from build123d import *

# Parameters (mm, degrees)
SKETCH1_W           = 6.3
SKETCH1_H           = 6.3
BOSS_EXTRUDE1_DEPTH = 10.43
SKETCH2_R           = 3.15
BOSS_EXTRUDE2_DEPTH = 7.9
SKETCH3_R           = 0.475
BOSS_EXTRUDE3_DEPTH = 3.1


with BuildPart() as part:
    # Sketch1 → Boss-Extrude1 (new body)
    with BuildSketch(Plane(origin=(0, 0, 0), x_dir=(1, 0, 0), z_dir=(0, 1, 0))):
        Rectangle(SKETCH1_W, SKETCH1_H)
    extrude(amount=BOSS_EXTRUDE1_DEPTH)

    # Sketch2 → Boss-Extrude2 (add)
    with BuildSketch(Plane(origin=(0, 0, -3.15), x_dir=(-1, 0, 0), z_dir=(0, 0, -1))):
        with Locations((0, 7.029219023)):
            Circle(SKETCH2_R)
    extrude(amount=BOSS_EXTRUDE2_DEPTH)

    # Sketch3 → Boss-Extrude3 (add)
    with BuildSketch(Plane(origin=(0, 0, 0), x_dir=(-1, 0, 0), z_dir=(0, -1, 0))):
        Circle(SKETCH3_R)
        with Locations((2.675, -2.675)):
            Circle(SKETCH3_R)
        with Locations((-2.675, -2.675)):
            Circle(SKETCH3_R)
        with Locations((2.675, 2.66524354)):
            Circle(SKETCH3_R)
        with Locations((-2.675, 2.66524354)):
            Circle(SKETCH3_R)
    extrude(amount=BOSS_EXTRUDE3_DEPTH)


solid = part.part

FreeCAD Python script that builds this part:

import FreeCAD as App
import Part
import Sketcher
from FreeCAD import Vector
Q = App.Units.Quantity


def add_polygon(sketch, points):
    """Adds a closed chain of lines whose ends are joined by coincident constraints."""
    first, n = sketch.GeometryCount, len(points)
    for a, b in zip(points, points[1:] + points[:1]):
        sketch.addGeometry(Part.LineSegment(App.Vector(*a, 0), App.Vector(*b, 0)), False)
    for i in range(n):
        sketch.addConstraint(Sketcher.Constraint("Coincident", first + i, 2, first + (i + 1) % n, 1))

doc = App.newDocument("Part")
params = doc.addObject("Spreadsheet::Sheet", "Params")
for row, (alias, value) in enumerate([
    ("sketch1_width", "6.3 mm"),
    ("pad1_length", "10.43 mm"),
    ("sketch2_diameter", "6.3 mm"),
    ("pad2_length", "7.9 mm"),
    ("sketch3_diameter", "0.95 mm"),
    ("pad3_length", "3.1 mm"),
], start=1):
    params.set(f"A{row}", alias)
    params.set(f"B{row}", "=" + value)
    params.setAlias(f"B{row}", alias)

body = doc.addObject("PartDesign::Body", "Body")

# Sketch on XZ plane
sketch1 = doc.addObject("Sketcher::SketchObject", "Sketch")
body.addObject(sketch1)
sketch1.AttachmentSupport = (doc.XZ_Plane, [""])
sketch1.MapMode = "FlatFace"
add_polygon(sketch1, [(-3, -3), (-3, 3), (3, 3), (3, -3)])  # lines 0-3
sketch1.addConstraint([
    Sketcher.Constraint("Vertical", 0),
    Sketcher.Constraint("Horizontal", 1),
    Sketcher.Constraint("Vertical", 2),
    Sketcher.Constraint("Horizontal", 3),
    Sketcher.Constraint("Symmetric", 0, 2, 2, 2, -1, 1),
    Sketcher.Constraint("Equal", 3, 0),
    Sketcher.Constraint("DistanceX", 1, 1, 1, 2, Q("6.3 mm")),
])
sketch1.setExpression("Constraints[10]", "Params.sketch1_width")
pad1 = doc.addObject("PartDesign::Pad", "Pad")
body.addObject(pad1)
pad1.Profile = sketch1
pad1.setExpression("Length", "Params.pad1_length")
pad1.Reversed = True

# Sketch on XY plane
sketch2 = doc.addObject("Sketcher::SketchObject", "Sketch001")
body.addObject(sketch2)
sketch2.AttachmentSupport = (doc.XY_Plane, [""])
sketch2.MapMode = "FlatFace"
sketch2.AttachmentOffset = App.Placement(Vector(0, 0, -3.15), App.Rotation())
sketch2.addGeometry(Part.Circle(Vector(0, 7, 0), Vector(0, 0, 1), 3.1), False)
sketch2.addConstraint([
    Sketcher.Constraint("PointOnObject", 0, 3, -2),
    Sketcher.Constraint("Diameter", 0, Q("6.3 mm")),
    Sketcher.Constraint("DistanceY", -1, 1, 0, 3, Q("7.029219 mm")),
])
sketch2.setExpression("Constraints[1]", "Params.sketch2_diameter")
pad2 = doc.addObject("PartDesign::Pad", "Pad001")
body.addObject(pad2)
pad2.Profile = sketch2
pad2.setExpression("Length", "Params.pad2_length")
pad2.Reversed = True

# Sketch on XZ plane
sketch3 = doc.addObject("Sketcher::SketchObject", "Sketch002")
body.addObject(sketch3)
sketch3.AttachmentSupport = (doc.XZ_Plane, [""])
sketch3.MapMode = "FlatFace"
sketch3.addGeometry([
    Part.Circle(Vector(0, 0, 0), Vector(0, 0, 1), 0.47),  # 0
    Part.Circle(Vector(-2.67, 2.67, 0), Vector(0, 0, 1), 0.47),  # 1
    Part.Circle(Vector(2.67, 2.67, 0), Vector(0, 0, 1), 0.47),  # 2
    Part.Circle(Vector(-2.67, -2.67, 0), Vector(0, 0, 1), 0.47),  # 3
    Part.Circle(Vector(2.67, -2.67, 0), Vector(0, 0, 1), 0.47),  # 4
], False)
sketch3.addConstraint([
    Sketcher.Constraint("Coincident", 0, 3, -1, 1),
    Sketcher.Constraint("Equal", 0, 1),
    Sketcher.Constraint("Equal", 1, 2),
    Sketcher.Constraint("Equal", 2, 3),
    Sketcher.Constraint("Equal", 3, 4),
    Sketcher.Constraint("Symmetric", 1, 3, 2, 3, -2),
    Sketcher.Constraint("Symmetric", 3, 3, 4, 3, -2),
    Sketcher.Constraint("Vertical", 1, 3, 3, 3),
    Sketcher.Constraint("Diameter", 0, Q("0.95 mm")),
    Sketcher.Constraint("DistanceX", 1, 3, 2, 3, Q("5.35 mm")),
    Sketcher.Constraint("DistanceY", -1, 1, 1, 3, Q("2.675 mm")),
    Sketcher.Constraint("DistanceY", 3, 3, -1, 1, Q("2.665244 mm")),
])
sketch3.setExpression("Constraints[8]", "Params.sketch3_diameter")
pad3 = doc.addObject("PartDesign::Pad", "Pad002")
body.addObject(pad3)
pad3.Profile = sketch3
pad3.setExpression("Length", "Params.pad3_length")

doc.recompute()
